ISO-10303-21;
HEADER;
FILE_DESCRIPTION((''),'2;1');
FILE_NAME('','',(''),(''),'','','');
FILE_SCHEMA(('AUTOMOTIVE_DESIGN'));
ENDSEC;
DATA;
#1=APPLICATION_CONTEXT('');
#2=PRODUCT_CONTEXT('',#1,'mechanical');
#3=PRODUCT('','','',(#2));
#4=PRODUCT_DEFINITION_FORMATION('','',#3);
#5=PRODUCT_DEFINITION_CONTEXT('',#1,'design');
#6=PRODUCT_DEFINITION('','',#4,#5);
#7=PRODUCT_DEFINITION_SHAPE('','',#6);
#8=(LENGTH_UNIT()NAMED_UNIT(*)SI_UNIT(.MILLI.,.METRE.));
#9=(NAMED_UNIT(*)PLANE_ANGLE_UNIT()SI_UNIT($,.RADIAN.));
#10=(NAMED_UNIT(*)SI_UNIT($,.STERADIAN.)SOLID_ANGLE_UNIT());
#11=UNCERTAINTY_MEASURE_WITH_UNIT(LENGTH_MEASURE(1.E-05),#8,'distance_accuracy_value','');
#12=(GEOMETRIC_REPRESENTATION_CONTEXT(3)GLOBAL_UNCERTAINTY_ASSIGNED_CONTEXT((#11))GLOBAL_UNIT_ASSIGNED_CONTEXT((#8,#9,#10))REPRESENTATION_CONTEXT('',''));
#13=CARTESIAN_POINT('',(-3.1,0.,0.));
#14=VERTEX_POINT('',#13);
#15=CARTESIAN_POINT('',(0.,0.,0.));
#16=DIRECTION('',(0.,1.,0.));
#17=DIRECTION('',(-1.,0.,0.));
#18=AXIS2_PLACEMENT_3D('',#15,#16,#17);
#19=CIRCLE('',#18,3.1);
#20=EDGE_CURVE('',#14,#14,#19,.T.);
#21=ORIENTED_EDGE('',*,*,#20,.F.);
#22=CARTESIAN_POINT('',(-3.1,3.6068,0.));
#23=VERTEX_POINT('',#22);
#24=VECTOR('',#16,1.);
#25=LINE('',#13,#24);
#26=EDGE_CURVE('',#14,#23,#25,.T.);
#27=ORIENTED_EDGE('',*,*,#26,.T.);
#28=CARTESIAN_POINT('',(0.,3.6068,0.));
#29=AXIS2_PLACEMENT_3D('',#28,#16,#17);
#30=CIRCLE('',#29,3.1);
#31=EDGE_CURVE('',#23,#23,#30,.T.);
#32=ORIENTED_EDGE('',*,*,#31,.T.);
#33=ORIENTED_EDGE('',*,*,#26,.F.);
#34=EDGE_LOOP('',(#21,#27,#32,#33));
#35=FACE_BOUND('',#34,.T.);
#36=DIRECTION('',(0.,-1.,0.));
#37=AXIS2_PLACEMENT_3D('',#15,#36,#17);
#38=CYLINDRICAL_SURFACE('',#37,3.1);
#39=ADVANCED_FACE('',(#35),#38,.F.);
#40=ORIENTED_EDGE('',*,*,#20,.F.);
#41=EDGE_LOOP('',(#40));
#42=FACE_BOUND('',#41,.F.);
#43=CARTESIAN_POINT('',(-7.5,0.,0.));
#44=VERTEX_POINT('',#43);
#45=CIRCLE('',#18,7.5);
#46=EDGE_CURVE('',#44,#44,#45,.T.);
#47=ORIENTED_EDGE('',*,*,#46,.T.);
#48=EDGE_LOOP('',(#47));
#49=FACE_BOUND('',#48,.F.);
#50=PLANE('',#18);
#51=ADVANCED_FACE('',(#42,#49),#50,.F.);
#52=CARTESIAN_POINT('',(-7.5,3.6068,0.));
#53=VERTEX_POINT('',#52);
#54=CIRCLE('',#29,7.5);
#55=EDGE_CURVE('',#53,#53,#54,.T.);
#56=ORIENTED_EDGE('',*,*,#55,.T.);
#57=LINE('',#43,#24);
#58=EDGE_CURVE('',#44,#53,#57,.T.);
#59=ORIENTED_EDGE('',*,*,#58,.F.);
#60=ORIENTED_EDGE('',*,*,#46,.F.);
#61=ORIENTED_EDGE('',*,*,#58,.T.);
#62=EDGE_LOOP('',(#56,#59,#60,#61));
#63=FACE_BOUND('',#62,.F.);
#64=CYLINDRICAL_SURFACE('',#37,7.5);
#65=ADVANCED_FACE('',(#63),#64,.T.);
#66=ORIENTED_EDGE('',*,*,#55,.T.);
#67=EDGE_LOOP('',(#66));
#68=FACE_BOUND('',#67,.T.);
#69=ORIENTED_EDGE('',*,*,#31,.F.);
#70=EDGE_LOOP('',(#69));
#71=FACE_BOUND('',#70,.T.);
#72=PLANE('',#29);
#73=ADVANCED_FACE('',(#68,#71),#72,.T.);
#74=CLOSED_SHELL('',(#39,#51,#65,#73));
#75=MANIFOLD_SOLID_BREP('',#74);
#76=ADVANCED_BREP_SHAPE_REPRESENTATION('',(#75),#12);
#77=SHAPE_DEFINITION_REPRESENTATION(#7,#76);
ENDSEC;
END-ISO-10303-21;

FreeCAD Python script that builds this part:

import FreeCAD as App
import Part
import Sketcher

V = App.Vector
Q = App.Units.Quantity

doc = App.newDocument("Part")
body = doc.addObject("PartDesign::Body", "Body")

# Sketch on XZ plane
sketch1 = body.newObject("Sketcher::SketchObject", "Sketch")
sketch1.AttachmentSupport = (doc.getObject("XZ_Plane"), [""])
sketch1.MapMode = "FlatFace"
sketch1.addGeometry(Part.Circle(V(0, 0, 0), V(0, 0, 1), 7.5), False)
sketch1.addGeometry(Part.Circle(V(0, 0, 0), V(0, 0, 1), 3.1), False)
sketch1.addConstraint(Sketcher.Constraint("Coincident", 0, 3, -1, 1))
sketch1.addConstraint(Sketcher.Constraint("Coincident", 1, 3, -1, 1))
sketch1.addConstraint(Sketcher.Constraint("Diameter", 0, Q("15 mm")))
sketch1.addConstraint(Sketcher.Constraint("Diameter", 1, Q("6.2 mm")))
pad1 = body.newObject("PartDesign::Pad", "Pad")
pad1.Profile = sketch1
pad1.Length = 3.6068
pad1.Reversed = True

doc.recompute()
